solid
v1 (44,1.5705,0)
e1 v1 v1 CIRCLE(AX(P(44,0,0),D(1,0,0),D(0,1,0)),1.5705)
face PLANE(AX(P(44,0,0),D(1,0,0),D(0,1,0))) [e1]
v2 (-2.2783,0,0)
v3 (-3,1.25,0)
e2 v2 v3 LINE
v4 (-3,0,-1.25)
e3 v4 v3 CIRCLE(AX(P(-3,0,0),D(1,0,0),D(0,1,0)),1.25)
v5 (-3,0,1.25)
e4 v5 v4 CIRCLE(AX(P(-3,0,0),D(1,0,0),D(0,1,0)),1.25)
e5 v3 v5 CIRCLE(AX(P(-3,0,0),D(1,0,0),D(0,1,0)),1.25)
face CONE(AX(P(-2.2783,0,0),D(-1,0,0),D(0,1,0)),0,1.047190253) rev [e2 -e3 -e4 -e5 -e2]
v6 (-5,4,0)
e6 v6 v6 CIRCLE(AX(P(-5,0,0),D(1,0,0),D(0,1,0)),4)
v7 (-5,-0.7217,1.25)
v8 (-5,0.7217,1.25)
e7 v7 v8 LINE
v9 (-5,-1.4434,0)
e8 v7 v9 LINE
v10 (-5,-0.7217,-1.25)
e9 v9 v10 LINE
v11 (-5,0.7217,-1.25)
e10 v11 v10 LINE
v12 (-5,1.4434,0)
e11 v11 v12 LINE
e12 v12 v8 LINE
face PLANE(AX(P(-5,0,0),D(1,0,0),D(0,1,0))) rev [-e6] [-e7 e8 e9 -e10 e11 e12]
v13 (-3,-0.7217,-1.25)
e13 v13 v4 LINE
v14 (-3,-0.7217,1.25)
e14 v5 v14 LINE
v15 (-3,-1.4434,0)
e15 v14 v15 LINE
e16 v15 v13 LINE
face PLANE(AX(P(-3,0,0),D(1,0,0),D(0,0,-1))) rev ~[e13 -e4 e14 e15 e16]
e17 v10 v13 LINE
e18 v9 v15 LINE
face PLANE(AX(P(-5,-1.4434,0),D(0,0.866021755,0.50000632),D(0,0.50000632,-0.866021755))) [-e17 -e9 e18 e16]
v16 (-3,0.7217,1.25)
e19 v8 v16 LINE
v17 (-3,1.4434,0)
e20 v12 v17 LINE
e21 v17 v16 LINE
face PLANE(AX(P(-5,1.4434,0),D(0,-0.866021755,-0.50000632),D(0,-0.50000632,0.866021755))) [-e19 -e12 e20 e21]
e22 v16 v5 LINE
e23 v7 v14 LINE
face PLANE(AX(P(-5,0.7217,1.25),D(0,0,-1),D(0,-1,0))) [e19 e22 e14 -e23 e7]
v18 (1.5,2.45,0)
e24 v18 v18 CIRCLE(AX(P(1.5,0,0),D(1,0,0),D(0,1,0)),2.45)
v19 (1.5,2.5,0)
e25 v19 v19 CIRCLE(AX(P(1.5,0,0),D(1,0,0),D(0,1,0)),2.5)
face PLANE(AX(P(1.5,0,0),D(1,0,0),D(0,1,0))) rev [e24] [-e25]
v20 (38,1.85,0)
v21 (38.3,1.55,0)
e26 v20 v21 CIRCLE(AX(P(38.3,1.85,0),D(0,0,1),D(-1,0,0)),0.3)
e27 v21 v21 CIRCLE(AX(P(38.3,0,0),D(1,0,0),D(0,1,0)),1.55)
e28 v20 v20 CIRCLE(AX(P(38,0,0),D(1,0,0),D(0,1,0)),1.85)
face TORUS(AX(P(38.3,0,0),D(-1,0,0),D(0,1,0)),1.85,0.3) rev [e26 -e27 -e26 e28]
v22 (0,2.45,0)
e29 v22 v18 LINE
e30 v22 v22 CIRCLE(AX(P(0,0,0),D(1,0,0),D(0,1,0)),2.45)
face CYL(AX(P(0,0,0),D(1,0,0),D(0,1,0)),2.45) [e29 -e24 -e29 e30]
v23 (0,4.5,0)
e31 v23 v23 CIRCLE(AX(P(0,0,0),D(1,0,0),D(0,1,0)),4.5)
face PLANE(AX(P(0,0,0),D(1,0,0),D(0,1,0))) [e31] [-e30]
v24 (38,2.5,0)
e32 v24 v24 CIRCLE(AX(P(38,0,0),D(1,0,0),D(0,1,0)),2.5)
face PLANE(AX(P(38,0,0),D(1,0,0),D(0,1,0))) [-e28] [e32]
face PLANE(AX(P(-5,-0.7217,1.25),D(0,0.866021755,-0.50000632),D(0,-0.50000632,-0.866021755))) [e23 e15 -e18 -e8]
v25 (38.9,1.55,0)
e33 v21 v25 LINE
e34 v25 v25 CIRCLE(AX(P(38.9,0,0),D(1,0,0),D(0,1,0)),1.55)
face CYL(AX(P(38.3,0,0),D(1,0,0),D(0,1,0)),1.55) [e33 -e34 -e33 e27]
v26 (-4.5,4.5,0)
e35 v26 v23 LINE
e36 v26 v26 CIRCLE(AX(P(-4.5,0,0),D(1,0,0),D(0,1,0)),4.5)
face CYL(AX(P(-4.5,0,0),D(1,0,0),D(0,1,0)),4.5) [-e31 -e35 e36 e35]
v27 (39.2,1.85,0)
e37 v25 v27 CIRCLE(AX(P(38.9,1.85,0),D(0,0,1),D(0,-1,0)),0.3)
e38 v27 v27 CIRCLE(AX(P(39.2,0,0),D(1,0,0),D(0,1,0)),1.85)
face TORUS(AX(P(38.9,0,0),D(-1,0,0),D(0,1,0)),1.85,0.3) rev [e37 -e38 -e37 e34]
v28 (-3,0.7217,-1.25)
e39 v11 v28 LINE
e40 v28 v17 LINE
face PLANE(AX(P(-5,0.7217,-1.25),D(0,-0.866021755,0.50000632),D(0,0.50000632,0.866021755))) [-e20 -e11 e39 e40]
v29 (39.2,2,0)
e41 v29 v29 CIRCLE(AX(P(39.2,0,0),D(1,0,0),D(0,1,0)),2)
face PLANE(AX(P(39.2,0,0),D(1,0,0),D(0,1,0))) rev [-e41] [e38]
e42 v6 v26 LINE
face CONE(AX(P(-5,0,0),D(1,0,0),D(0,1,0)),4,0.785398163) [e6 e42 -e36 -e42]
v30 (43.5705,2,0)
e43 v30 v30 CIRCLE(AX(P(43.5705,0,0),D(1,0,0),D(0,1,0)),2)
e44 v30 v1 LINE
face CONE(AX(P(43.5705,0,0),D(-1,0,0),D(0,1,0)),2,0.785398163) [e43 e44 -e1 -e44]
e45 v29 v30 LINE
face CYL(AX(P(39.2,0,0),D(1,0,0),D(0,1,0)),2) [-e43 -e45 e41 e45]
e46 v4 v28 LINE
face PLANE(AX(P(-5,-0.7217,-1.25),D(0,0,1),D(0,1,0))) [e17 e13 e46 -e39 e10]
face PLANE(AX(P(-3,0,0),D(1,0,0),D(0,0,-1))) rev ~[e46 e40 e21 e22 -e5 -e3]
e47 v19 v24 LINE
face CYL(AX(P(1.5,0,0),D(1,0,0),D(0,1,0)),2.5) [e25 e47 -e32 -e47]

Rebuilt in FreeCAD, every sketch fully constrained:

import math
import FreeCAD as App
import Part
import Sketcher
Q = App.Units.Quantity


def add_polygon(sketch, points):
    """Adds a closed chain of lines whose ends are joined by coincident constraints."""
    first, n = sketch.GeometryCount, len(points)
    for a, b in zip(points, points[1:] + points[:1]):
        sketch.addGeometry(Part.LineSegment(App.Vector(*a, 0), App.Vector(*b, 0)), False)
    for i in range(n):
        sketch.addConstraint(Sketcher.Constraint("Coincident", first + i, 2, first + (i + 1) % n, 1))

doc = App.newDocument("Part")
body = doc.addObject("PartDesign::Body", "Body")

# Sketch on XY plane
sketch1 = body.newObject("Sketcher::SketchObject", "Sketch")
sketch1.AttachmentSupport = (doc.getObject("XY_Plane"), [""])
sketch1.MapMode = "FlatFace"
sketch1.addGeometry(Part.LineSegment(App.Vector(-2.2783, 0, 0), App.Vector(44, 0, 0)), False)
sketch1.addGeometry(Part.LineSegment(App.Vector(44, 0, 0), App.Vector(44, 1.5705, 0)), False)
sketch1.addGeometry(Part.LineSegment(App.Vector(44, 1.5705, 0), App.Vector(43.5705, 2, 0)), False)
sketch1.addGeometry(Part.LineSegment(App.Vector(43.5705, 2, 0), App.Vector(39.2, 2, 0)), False)
sketch1.addGeometry(Part.LineSegment(App.Vector(39.2, 2, 0), App.Vector(39.2, 1.85, 0)), False)
sketch1.addGeometry(Part.ArcOfCircle(Part.Circle(App.Vector(38.9, 1.85, 0), App.Vector(0, 0, 1), 0.3), math.radians(-90), math.radians(0)), False)
sketch1.addGeometry(Part.LineSegment(App.Vector(38.9, 1.55, 0), App.Vector(38.3, 1.55, 0)), False)
sketch1.addGeometry(Part.ArcOfCircle(Part.Circle(App.Vector(38.3, 1.85, 0), App.Vector(0, 0, 1), 0.3), math.radians(180), math.radians(270)), False)
sketch1.addGeometry(Part.LineSegment(App.Vector(38, 1.85, 0), App.Vector(38, 2.5, 0)), False)
sketch1.addGeometry(Part.LineSegment(App.Vector(38, 2.5, 0), App.Vector(1.5, 2.5, 0)), False)
sketch1.addGeometry(Part.LineSegment(App.Vector(1.5, 2.5, 0), App.Vector(1.5, 2.45, 0)), False)
sketch1.addGeometry(Part.LineSegment(App.Vector(1.5, 2.45, 0), App.Vector(0, 2.45, 0)), False)
sketch1.addGeometry(Part.LineSegment(App.Vector(0, 2.45, 0), App.Vector(0, 4.5, 0)), False)
sketch1.addGeometry(Part.LineSegment(App.Vector(0, 4.5, 0), App.Vector(-4.5, 4.5, 0)), False)
sketch1.addGeometry(Part.LineSegment(App.Vector(-4.5, 4.5, 0), App.Vector(-5, 4, 0)), False)
sketch1.addGeometry(Part.LineSegment(App.Vector(-5, 4, 0), App.Vector(-5, 1.25, 0)), False)
sketch1.addGeometry(Part.LineSegment(App.Vector(-5, 1.25, 0), App.Vector(-3, 1.25, 0)), False)
sketch1.addGeometry(Part.LineSegment(App.Vector(-3, 1.25, 0), App.Vector(-2.2783, 0, 0)), False)
sketch1.addConstraint(Sketcher.Constraint("Coincident", 0, 2, 1, 1))
sketch1.addConstraint(Sketcher.Constraint("Coincident", 1, 2, 2, 1))
sketch1.addConstraint(Sketcher.Constraint("Coincident", 2, 2, 3, 1))
sketch1.addConstraint(Sketcher.Constraint("Coincident", 3, 2, 4, 1))
sketch1.addConstraint(Sketcher.Constraint("Tangent", 4, 2, 5, 2))
sketch1.addConstraint(Sketcher.Constraint("Tangent", 5, 1, 6, 1))
sketch1.addConstraint(Sketcher.Constraint("Tangent", 6, 2, 7, 2))
sketch1.addConstraint(Sketcher.Constraint("Tangent", 7, 1, 8, 1))
sketch1.addConstraint(Sketcher.Constraint("Coincident", 8, 2, 9, 1))
sketch1.addConstraint(Sketcher.Constraint("Coincident", 9, 2, 10, 1))
sketch1.addConstraint(Sketcher.Constraint("Coincident", 10, 2, 11, 1))
sketch1.addConstraint(Sketcher.Constraint("Coincident", 11, 2, 12, 1))
sketch1.addConstraint(Sketcher.Constraint("Coincident", 12, 2, 13, 1))
sketch1.addConstraint(Sketcher.Constraint("Coincident", 13, 2, 14, 1))
sketch1.addConstraint(Sketcher.Constraint("Coincident", 14, 2, 15, 1))
sketch1.addConstraint(Sketcher.Constraint("Coincident", 15, 2, 16, 1))
sketch1.addConstraint(Sketcher.Constraint("Coincident", 16, 2, 17, 1))
sketch1.addConstraint(Sketcher.Constraint("Coincident", 17, 2, 0, 1))
sketch1.addConstraint(Sketcher.Constraint("Horizontal", 0))
sketch1.addConstraint(Sketcher.Constraint("Vertical", 1))
sketch1.addConstraint(Sketcher.Constraint("Horizontal", 3))
sketch1.addConstraint(Sketcher.Constraint("Vertical", 4))
sketch1.addConstraint(Sketcher.Constraint("Horizontal", 6))
sketch1.addConstraint(Sketcher.Constraint("Vertical", 8))
sketch1.addConstraint(Sketcher.Constraint("Horizontal", 9))
sketch1.addConstraint(Sketcher.Constraint("Vertical", 10))
sketch1.addConstraint(Sketcher.Constraint("Horizontal", 11))
sketch1.addConstraint(Sketcher.Constraint("Vertical", 12))
sketch1.addConstraint(Sketcher.Constraint("Horizontal", 13))
sketch1.addConstraint(Sketcher.Constraint("Vertical", 15))
sketch1.addConstraint(Sketcher.Constraint("Horizontal", 16))
sketch1.addConstraint(Sketcher.Constraint("Equal", 5, 7))
sketch1.addConstraint(Sketcher.Constraint("PointOnObject", 0, 2, -1))
sketch1.addConstraint(Sketcher.Constraint("PointOnObject", 11, 2, -2))
sketch1.addConstraint(Sketcher.Constraint("Perpendicular", 2, 14))
sketch1.addConstraint(Sketcher.Constraint("Radius", 5, 0.3))
sketch1.addConstraint(Sketcher.Constraint("DistanceX", 16, 1, 16, 2, 2.0))
sketch1.addConstraint(Sketcher.Constraint("Angle", 2, Q("135 deg")))
sketch1.addConstraint(Sketcher.Constraint("Angle", 17, Q("-59.9996 deg")))
sketch1.addConstraint(Sketcher.Constraint("DistanceX", 6, 2, 6, 1, 0.6))
sketch1.addConstraint(Sketcher.Constraint("DistanceX", 9, 2, 9, 1, 36.5))
sketch1.addConstraint(Sketcher.Constraint("DistanceX", 11, 2, 11, 1, 1.5))
sketch1.addConstraint(Sketcher.Constraint("DistanceX", 13, 2, 13, 1, 4.5))
sketch1.addConstraint(Sketcher.Constraint("DistanceX", -1, 1, 0, 2, 44.0))
sketch1.addConstraint(Sketcher.Constraint("DistanceY", -1, 1, 2, 2, 2.0))
sketch1.addConstraint(Sketcher.Constraint("DistanceX", 14, 2, -1, 1, 5.0))
sketch1.addConstraint(Sketcher.Constraint("DistanceY", -1, 1, 14, 2, 4.0))
sketch1.addConstraint(Sketcher.Constraint("DistanceY", 9, 2, 12, 2, 2.0))
sketch1.addConstraint(Sketcher.Constraint("DistanceY", 4, 2, 4, 1, 0.15))
sketch1.addConstraint(Sketcher.Constraint("DistanceY", 10, 2, 10, 1, 0.05))
sketch1.addConstraint(Sketcher.Constraint("DistanceY", 15, 2, 15, 1, 2.75))
sketch1.addConstraint(Sketcher.Constraint("DistanceX", 3, 2, 3, 1, 4.3705))
revolution = body.newObject("PartDesign::Revolution", "Revolution")
revolution.Profile = sketch1
revolution.ReferenceAxis = (sketch1, ["H_Axis"])
revolution.Angle = 360

# Sketch on YZ plane
sketch2 = body.newObject("Sketcher::SketchObject", "Sketch001")
sketch2.AttachmentSupport = (doc.getObject("YZ_Plane"), [""])
sketch2.MapMode = "FlatFace"
sketch2.AttachmentOffset = App.Placement(App.Vector(0, 0, -5), App.Rotation())
add_polygon(sketch2, [(0.7217, 1.25), (-0.7217, 1.25), (-1.4434, 0), (-0.7217, -1.25), (0.7217, -1.25), (1.4434, 0)])  # lines 0-5
sketch2.addConstraint(Sketcher.Constraint("Horizontal", 0))
sketch2.addConstraint(Sketcher.Constraint("Horizontal", 3))
sketch2.addConstraint(Sketcher.Constraint("Symmetric", 0, 2, 3, 2, -1, 1))
sketch2.addConstraint(Sketcher.Constraint("Symmetric", 1, 2, 4, 2, -1, 1))
sketch2.addConstraint(Sketcher.Constraint("PointOnObject", 1, 2, -1))
sketch2.addConstraint(Sketcher.Constraint("Parallel", 2, 5))
sketch2.addConstraint(Sketcher.Constraint("Vertical", 0, 2, 2, 2))
sketch2.addConstraint(Sketcher.Constraint("Angle", 1, Q("-120.0004 deg")))
sketch2.addConstraint(Sketcher.Constraint("DistanceY", 2, 2, 0, 2, 2.5))
sketch2.addConstraint(Sketcher.Constraint("DistanceX", 0, 2, 0, 1, 1.4434))
pocket1 = body.newObject("PartDesign::Pocket", "Pocket")
pocket1.Profile = sketch2
pocket1.Length = 2
pocket1.Reversed = True

doc.recompute()
